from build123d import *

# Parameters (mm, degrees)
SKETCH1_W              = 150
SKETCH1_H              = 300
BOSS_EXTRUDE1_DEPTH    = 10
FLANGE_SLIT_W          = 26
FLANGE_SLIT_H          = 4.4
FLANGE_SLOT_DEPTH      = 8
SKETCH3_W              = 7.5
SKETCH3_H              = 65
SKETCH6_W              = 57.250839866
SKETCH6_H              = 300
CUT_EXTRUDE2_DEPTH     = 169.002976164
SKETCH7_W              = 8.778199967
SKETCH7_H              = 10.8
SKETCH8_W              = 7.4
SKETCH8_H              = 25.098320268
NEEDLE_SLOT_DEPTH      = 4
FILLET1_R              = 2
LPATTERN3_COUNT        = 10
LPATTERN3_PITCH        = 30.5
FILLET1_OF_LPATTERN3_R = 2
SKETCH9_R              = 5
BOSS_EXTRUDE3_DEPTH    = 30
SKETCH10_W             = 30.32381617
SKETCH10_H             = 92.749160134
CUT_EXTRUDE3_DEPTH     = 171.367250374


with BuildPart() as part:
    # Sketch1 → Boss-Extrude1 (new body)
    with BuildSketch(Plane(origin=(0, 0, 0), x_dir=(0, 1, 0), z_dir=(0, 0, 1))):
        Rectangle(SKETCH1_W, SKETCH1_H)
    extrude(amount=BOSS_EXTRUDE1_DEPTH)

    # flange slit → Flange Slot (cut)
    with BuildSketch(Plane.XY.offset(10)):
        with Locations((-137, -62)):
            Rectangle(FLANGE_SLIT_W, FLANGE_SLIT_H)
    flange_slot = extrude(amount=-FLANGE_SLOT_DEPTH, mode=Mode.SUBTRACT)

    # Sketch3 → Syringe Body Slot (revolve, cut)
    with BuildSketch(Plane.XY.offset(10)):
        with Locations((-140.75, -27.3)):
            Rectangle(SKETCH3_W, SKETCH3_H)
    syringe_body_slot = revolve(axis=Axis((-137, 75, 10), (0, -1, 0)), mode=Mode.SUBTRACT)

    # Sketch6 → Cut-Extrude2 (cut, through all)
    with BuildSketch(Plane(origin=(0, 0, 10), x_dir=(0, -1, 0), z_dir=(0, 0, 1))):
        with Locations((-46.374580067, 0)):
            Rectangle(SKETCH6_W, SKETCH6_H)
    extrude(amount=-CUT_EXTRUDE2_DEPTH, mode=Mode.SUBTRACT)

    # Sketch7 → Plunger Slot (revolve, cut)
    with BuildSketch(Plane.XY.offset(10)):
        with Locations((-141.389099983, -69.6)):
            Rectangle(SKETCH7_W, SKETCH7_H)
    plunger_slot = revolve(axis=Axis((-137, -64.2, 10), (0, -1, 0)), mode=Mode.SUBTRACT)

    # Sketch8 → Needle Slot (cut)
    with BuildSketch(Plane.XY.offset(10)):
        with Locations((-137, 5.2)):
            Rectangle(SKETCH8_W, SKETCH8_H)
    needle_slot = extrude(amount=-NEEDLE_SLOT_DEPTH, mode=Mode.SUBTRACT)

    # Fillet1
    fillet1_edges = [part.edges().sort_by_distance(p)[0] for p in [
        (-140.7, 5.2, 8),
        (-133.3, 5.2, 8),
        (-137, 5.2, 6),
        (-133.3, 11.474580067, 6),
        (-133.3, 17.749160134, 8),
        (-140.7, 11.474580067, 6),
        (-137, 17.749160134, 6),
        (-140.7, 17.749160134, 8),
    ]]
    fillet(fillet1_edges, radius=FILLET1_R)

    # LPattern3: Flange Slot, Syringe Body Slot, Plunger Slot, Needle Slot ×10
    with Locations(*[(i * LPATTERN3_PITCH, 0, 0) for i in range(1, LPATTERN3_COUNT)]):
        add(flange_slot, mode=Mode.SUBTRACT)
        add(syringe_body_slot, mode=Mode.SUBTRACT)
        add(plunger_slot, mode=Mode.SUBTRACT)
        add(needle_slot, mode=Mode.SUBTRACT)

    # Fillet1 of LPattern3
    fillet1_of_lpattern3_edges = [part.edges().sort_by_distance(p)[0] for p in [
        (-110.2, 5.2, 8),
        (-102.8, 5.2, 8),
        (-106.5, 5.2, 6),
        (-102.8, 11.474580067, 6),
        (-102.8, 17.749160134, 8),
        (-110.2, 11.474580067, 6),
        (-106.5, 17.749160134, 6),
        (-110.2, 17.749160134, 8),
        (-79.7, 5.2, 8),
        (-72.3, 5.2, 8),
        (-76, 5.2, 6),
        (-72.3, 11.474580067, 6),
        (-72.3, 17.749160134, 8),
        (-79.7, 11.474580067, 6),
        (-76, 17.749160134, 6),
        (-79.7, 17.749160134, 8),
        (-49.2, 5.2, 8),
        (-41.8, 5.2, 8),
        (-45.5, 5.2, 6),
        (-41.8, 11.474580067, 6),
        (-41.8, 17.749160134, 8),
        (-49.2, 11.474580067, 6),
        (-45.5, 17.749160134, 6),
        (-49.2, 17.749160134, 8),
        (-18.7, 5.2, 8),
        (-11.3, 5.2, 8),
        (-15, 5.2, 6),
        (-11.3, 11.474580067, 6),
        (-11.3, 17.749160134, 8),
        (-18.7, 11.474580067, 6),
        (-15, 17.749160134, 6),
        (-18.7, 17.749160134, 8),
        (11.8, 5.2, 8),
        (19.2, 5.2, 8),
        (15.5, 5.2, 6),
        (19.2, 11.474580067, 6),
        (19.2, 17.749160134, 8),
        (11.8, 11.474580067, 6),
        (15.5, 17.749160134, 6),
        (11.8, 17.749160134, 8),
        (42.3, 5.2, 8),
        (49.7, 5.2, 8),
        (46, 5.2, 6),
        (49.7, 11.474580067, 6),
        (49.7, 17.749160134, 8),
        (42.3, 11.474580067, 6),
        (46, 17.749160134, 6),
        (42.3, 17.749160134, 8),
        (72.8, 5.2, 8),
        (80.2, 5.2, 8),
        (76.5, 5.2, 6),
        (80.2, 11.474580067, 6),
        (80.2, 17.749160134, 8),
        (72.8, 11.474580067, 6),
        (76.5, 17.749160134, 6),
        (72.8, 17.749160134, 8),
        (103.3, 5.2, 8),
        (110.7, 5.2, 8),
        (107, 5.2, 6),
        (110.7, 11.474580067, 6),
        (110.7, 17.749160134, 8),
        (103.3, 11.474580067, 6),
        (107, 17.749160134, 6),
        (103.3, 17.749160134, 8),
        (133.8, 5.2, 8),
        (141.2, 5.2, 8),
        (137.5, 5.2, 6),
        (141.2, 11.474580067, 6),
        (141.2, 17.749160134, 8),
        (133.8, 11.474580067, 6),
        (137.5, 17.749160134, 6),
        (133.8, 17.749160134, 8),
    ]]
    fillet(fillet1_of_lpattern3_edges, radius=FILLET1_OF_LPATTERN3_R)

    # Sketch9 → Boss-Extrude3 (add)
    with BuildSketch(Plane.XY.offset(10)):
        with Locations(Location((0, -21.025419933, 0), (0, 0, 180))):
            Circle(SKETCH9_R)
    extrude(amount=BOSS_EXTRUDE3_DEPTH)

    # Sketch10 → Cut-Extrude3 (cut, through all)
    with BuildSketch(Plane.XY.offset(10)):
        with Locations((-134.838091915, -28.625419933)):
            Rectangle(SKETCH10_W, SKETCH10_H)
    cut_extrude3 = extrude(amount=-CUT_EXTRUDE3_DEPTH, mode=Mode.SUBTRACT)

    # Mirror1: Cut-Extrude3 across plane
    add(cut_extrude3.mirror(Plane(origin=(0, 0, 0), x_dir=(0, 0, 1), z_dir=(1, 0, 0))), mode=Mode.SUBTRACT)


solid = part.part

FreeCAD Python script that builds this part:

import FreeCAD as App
import Part
import Sketcher

V = App.Vector
Q = App.Units.Quantity


def edges_at(feature, points):
    """Names of the edges that pass closest to the given points."""
    edges = feature.Shape.Edges
    near = lambda p: min(range(len(edges)), key=lambda i: edges[i].distToShape(Part.Vertex(*p))[0])
    return sorted({f"Edge{near(p) + 1}" for p in points})


def add_polygon(sketch, points):
    """Adds a closed chain of lines whose ends are joined by coincident constraints."""
    first, n = sketch.GeometryCount, len(points)
    for a, b in zip(points, points[1:] + points[:1]):
        sketch.addGeometry(Part.LineSegment(App.Vector(*a, 0), App.Vector(*b, 0)), False)
    for i in range(n):
        sketch.addConstraint(Sketcher.Constraint("Coincident", first + i, 2, first + (i + 1) % n, 1))

doc = App.newDocument("Part")
body = doc.addObject("PartDesign::Body", "Body")

sketch1 = body.newObject("Sketcher::SketchObject", "Sketch")
sketch1.AttachmentSupport = (doc.getObject("XY_Plane"), [""])
sketch1.MapMode = "FlatFace"
add_polygon(sketch1, [(-150, -75), (150, -75), (150, 75), (-150, 75)])
sketch1.addConstraint(Sketcher.Constraint("Horizontal", 0))
sketch1.addConstraint(Sketcher.Constraint("Vertical", 1))
sketch1.addConstraint(Sketcher.Constraint("Horizontal", 2))
sketch1.addConstraint(Sketcher.Constraint("Vertical", 3))
sketch1.addConstraint(Sketcher.Constraint("Symmetric", 0, 2, 2, 2, -1, 1))
sketch1.addConstraint(Sketcher.Constraint("DistanceX", 0, 1, 0, 2, Q("300 mm")))
sketch1.addConstraint(Sketcher.Constraint("DistanceY", 1, 1, 1, 2, Q("150 mm")))
pad1 = body.newObject("PartDesign::Pad", "Pad")
pad1.Profile = sketch1
pad1.Length = 10

sketch2 = body.newObject("Sketcher::SketchObject", "Sketch001")
sketch2.AttachmentSupport = (doc.getObject("XY_Plane"), [""])
sketch2.MapMode = "FlatFace"
sketch2.AttachmentOffset = App.Placement(V(0, 0, 10), App.Rotation())
add_polygon(sketch2, [(-150, -59.8), (-150, -64.2), (-124, -64.2), (-124, -59.8)])
sketch2.addConstraint(Sketcher.Constraint("Vertical", 0))
sketch2.addConstraint(Sketcher.Constraint("Horizontal", 1))
sketch2.addConstraint(Sketcher.Constraint("Vertical", 2))
sketch2.addConstraint(Sketcher.Constraint("Horizontal", 3))
sketch2.addConstraint(Sketcher.Constraint("DistanceX", 1, 1, 1, 2, Q("26 mm")))
sketch2.addConstraint(Sketcher.Constraint("DistanceY", 0, 2, 0, 1, Q("4.4 mm")))
sketch2.addConstraint(Sketcher.Constraint("DistanceX", 0, 2, -1, 1, Q("150 mm")))
sketch2.addConstraint(Sketcher.Constraint("DistanceY", 0, 2, -1, 1, Q("64.2 mm")))
pocket1 = body.newObject("PartDesign::Pocket", "Pocket")
pocket1.Profile = sketch2
pocket1.Length = 8

sketch3 = body.newObject("Sketcher::SketchObject", "Sketch002")
sketch3.AttachmentSupport = (doc.getObject("XY_Plane"), [""])
sketch3.MapMode = "FlatFace"
sketch3.AttachmentOffset = App.Placement(V(0, 0, 10), App.Rotation())
add_polygon(sketch3, [(-144.5, 5.2), (-144.5, -59.8), (-137, -59.8), (-137, 5.2)])
sketch3.addGeometry(Part.LineSegment(V(-137, 5.2, 0), V(-137, -59.8, 0)), True)
sketch3.addConstraint(Sketcher.Constraint("Vertical", 0))
sketch3.addConstraint(Sketcher.Constraint("Horizontal", 1))
sketch3.addConstraint(Sketcher.Constraint("Vertical", 2))
sketch3.addConstraint(Sketcher.Constraint("Horizontal", 3))
sketch3.addConstraint(Sketcher.Constraint("Vertical", 4))
sketch3.addConstraint(Sketcher.Constraint("Coincident", 4, 1, 2, 2))
sketch3.addConstraint(Sketcher.Constraint("Horizontal", 0, 2, 4, 2))
sketch3.addConstraint(Sketcher.Constraint("DistanceY", 0, 2, 0, 1, Q("65 mm")))
sketch3.addConstraint(Sketcher.Constraint("DistanceX", 1, 1, 1, 2, Q("7.5 mm")))
sketch3.addConstraint(Sketcher.Constraint("DistanceX", 1, 2, -1, 1, Q("137 mm")))
sketch3.addConstraint(Sketcher.Constraint("DistanceY", 0, 2, -1, 1, Q("59.8 mm")))
groove = body.newObject("PartDesign::Groove", "Groove")
groove.Profile = sketch3
groove.ReferenceAxis = (sketch3, ["Axis0"])
groove.Angle = 360

sketch4 = body.newObject("Sketcher::SketchObject", "Sketch003")
sketch4.AttachmentSupport = (doc.getObject("XY_Plane"), [""])
sketch4.MapMode = "FlatFace"
sketch4.AttachmentOffset = App.Placement(V(0, 0, 10), App.Rotation())
add_polygon(sketch4, [(150, 75), (-150, 75), (-150, 17.74916), (150, 17.74916)])
sketch4.addConstraint(Sketcher.Constraint("Horizontal", 0))
sketch4.addConstraint(Sketcher.Constraint("Vertical", 1))
sketch4.addConstraint(Sketcher.Constraint("Horizontal", 2))
sketch4.addConstraint(Sketcher.Constraint("Vertical", 3))
sketch4.addConstraint(Sketcher.Constraint("DistanceX", 0, 2, 0, 1, Q("300 mm")))
sketch4.addConstraint(Sketcher.Constraint("DistanceX", 0, 2, -1, 1, Q("150 mm")))
sketch4.addConstraint(Sketcher.Constraint("DistanceY", -1, 1, 0, 2, Q("75 mm")))
sketch4.addConstraint(Sketcher.Constraint("DistanceY", 1, 2, 1, 1, Q("57.25084 mm")))
pocket2 = body.newObject("PartDesign::Pocket", "Pocket001")
pocket2.Profile = sketch4
pocket2.Type = "ThroughAll"

sketch5 = body.newObject("Sketcher::SketchObject", "Sketch004")
sketch5.AttachmentSupport = (doc.getObject("XY_Plane"), [""])
sketch5.MapMode = "FlatFace"
sketch5.AttachmentOffset = App.Placement(V(0, 0, 10), App.Rotation())
add_polygon(sketch5, [(-145.7782, -64.2), (-145.7782, -75), (-137, -75), (-137, -64.2)])
sketch5.addGeometry(Part.LineSegment(V(-137, -64.2, 0), V(-137, -75, 0)), True)
sketch5.addConstraint(Sketcher.Constraint("Vertical", 0))
sketch5.addConstraint(Sketcher.Constraint("Horizontal", 1))
sketch5.addConstraint(Sketcher.Constraint("Vertical", 2))
sketch5.addConstraint(Sketcher.Constraint("Horizontal", 3))
sketch5.addConstraint(Sketcher.Constraint("Vertical", 4))
sketch5.addConstraint(Sketcher.Constraint("Coincident", 4, 1, 2, 2))
sketch5.addConstraint(Sketcher.Constraint("Horizontal", 0, 2, 4, 2))
sketch5.addConstraint(Sketcher.Constraint("DistanceY", 0, 2, 0, 1, Q("10.8 mm")))
sketch5.addConstraint(Sketcher.Constraint("DistanceY", 0, 2, -1, 1, Q("75 mm")))
sketch5.addConstraint(Sketcher.Constraint("DistanceX", 1, 2, -1, 1, Q("137 mm")))
sketch5.addConstraint(Sketcher.Constraint("DistanceX", 1, 1, 1, 2, Q("8.7782 mm")))
groove2 = body.newObject("PartDesign::Groove", "Groove001")
groove2.Profile = sketch5
groove2.ReferenceAxis = (sketch5, ["Axis0"])
groove2.Angle = 360

sketch6 = body.newObject("Sketcher::SketchObject", "Sketch005")
sketch6.AttachmentSupport = (doc.getObject("XY_Plane"), [""])
sketch6.MapMode = "FlatFace"
sketch6.AttachmentOffset = App.Placement(V(0, 0, 10), App.Rotation())
add_polygon(sketch6, [(-140.7, 17.74916), (-140.7, -7.34916), (-133.3, -7.34916), (-133.3, 17.74916)])
sketch6.addConstraint(Sketcher.Constraint("Vertical", 0))
sketch6.addConstraint(Sketcher.Constraint("Horizontal", 1))
sketch6.addConstraint(Sketcher.Constraint("Vertical", 2))
sketch6.addConstraint(Sketcher.Constraint("Horizontal", 3))
sketch6.addConstraint(Sketcher.Constraint("DistanceX", 1, 1, 1, 2, Q("7.4 mm")))
sketch6.addConstraint(Sketcher.Constraint("DistanceX", 0, 2, -1, 1, Q("140.7 mm")))
sketch6.addConstraint(Sketcher.Constraint("DistanceY", 0, 2, 0, 1, Q("25.09832 mm")))
sketch6.addConstraint(Sketcher.Constraint("DistanceY", 0, 2, -1, 1, Q("7.34916 mm")))
pocket3 = body.newObject("PartDesign::Pocket", "Pocket002")
pocket3.Profile = sketch6
pocket3.Length = 4
doc.recompute()

fillet = body.newObject("PartDesign::Fillet", "Fillet")
fillet.Base = (pocket3, edges_at(pocket3, [
    (-140.7, 5.2, 8),
    (-133.3, 5.2, 8),
    (-137, 5.2, 6),
    (-133.3, 11.475, 6),
    (-133.3, 17.749, 8),
    (-140.7, 11.475, 6),
    (-137, 17.749, 6),
    (-140.7, 17.749, 8),
]))
fillet.Radius = 2
doc.recompute()

linearpattern = body.newObject("PartDesign::LinearPattern", "LinearPattern")
linearpattern.Originals = [pocket1, groove, groove2, pocket3]
linearpattern.Direction = (doc.getObject("X_Axis"), [""])
linearpattern.Mode = "offset"
linearpattern.Offset = 30.5
linearpattern.Occurrences = 10
body.Tip = linearpattern
doc.recompute()

fillet2 = body.newObject("PartDesign::Fillet", "Fillet001")
fillet2.Base = (linearpattern, edges_at(linearpattern, [
    (-110.2, 5.2, 8),
    (-102.8, 5.2, 8),
    (-106.5, 5.2, 6),
    (-102.8, 11.475, 6),
    (-102.8, 17.749, 8),
    (-110.2, 11.475, 6),
    (-106.5, 17.749, 6),
    (-110.2, 17.749, 8),
    (-79.7, 5.2, 8),
    (-72.3, 5.2, 8),
    (-76, 5.2, 6),
    (-72.3, 11.475, 6),
    (-72.3, 17.749, 8),
    (-79.7, 11.475, 6),
    (-76, 17.749, 6),
    (-79.7, 17.749, 8),
    (-49.2, 5.2, 8),
    (-41.8, 5.2, 8),
    (-45.5, 5.2, 6),
    (-41.8, 11.475, 6),
    (-41.8, 17.749, 8),
    (-49.2, 11.475, 6),
    (-45.5, 17.749, 6),
    (-49.2, 17.749, 8),
    (-18.7, 5.2, 8),
    (-11.3, 5.2, 8),
    (-15, 5.2, 6),
    (-11.3, 11.475, 6),
    (-11.3, 17.749, 8),
    (-18.7, 11.475, 6),
    (-15, 17.749, 6),
    (-18.7, 17.749, 8),
    (11.8, 5.2, 8),
    (19.2, 5.2, 8),
    (15.5, 5.2, 6),
    (19.2, 11.475, 6),
    (19.2, 17.749, 8),
    (11.8, 11.475, 6),
    (15.5, 17.749, 6),
    (11.8, 17.749, 8),
    (42.3, 5.2, 8),
    (49.7, 5.2, 8),
    (46, 5.2, 6),
    (49.7, 11.475, 6),
    (49.7, 17.749, 8),
    (42.3, 11.475, 6),
    (46, 17.749, 6),
    (42.3, 17.749, 8),
    (72.8, 5.2, 8),
    (80.2, 5.2, 8),
    (76.5, 5.2, 6),
    (80.2, 11.475, 6),
    (80.2, 17.749, 8),
    (72.8, 11.475, 6),
    (76.5, 17.749, 6),
    (72.8, 17.749, 8),
    (103.3, 5.2, 8),
    (110.7, 5.2, 8),
    (107, 5.2, 6),
    (110.7, 11.475, 6),
    (110.7, 17.749, 8),
    (103.3, 11.475, 6),
    (107, 17.749, 6),
    (103.3, 17.749, 8),
    (133.8, 5.2, 8),
    (141.2, 5.2, 8),
    (137.5, 5.2, 6),
    (141.2, 11.475, 6),
    (141.2, 17.749, 8),
    (133.8, 11.475, 6),
    (137.5, 17.749, 6),
    (133.8, 17.749, 8),
]))
fillet2.Radius = 2

sketch7 = body.newObject("Sketcher::SketchObject", "Sketch006")
sketch7.AttachmentSupport = (doc.getObject("XY_Plane"), [""])
sketch7.MapMode = "FlatFace"
sketch7.AttachmentOffset = App.Placement(V(0, 0, 10), App.Rotation())
sketch7.addGeometry(Part.Circle(V(0, -21.02542, 0), V(0, 0, 1), 5), False)
sketch7.addConstraint(Sketcher.Constraint("PointOnObject", 0, 3, -2))
sketch7.addConstraint(Sketcher.Constraint("Diameter", 0, Q("10 mm")))
sketch7.addConstraint(Sketcher.Constraint("DistanceY", 0, 3, -1, 1, Q("21.02542 mm")))
pad2 = body.newObject("PartDesign::Pad", "Pad001")
pad2.Profile = sketch7
pad2.Length = 30

sketch8 = body.newObject("Sketcher::SketchObject", "Sketch007")
sketch8.AttachmentSupport = (doc.getObject("XY_Plane"), [""])
sketch8.MapMode = "FlatFace"
sketch8.AttachmentOffset = App.Placement(V(0, 0, 10), App.Rotation())
add_polygon(sketch8, [(-150, 17.74916), (-150, -75), (-119.676184, -75), (-119.676184, 17.74916)])
sketch8.addConstraint(Sketcher.Constraint("Vertical", 0))
sketch8.addConstraint(Sketcher.Constraint("Horizontal", 1))
sketch8.addConstraint(Sketcher.Constraint("Vertical", 2))
sketch8.addConstraint(Sketcher.Constraint("Horizontal", 3))
sketch8.addConstraint(Sketcher.Constraint("DistanceX", 0, 2, -1, 1, Q("150 mm")))
sketch8.addConstraint(Sketcher.Constraint("DistanceY", 0, 2, -1, 1, Q("75 mm")))
sketch8.addConstraint(Sketcher.Constraint("DistanceY", 0, 2, 0, 1, Q("92.74916 mm")))
sketch8.addConstraint(Sketcher.Constraint("DistanceX", 1, 1, 1, 2, Q("30.323816 mm")))
pocket4 = body.newObject("PartDesign::Pocket", "Pocket003")
pocket4.Profile = sketch8
pocket4.Type = "ThroughAll"
doc.recompute()

mirrored = body.newObject("PartDesign::Mirrored", "Mirrored")
mirrored.Originals = [pocket4]
mirrored.MirrorPlane = (doc.getObject("YZ_Plane"), [""])
body.Tip = mirrored

doc.recompute()
